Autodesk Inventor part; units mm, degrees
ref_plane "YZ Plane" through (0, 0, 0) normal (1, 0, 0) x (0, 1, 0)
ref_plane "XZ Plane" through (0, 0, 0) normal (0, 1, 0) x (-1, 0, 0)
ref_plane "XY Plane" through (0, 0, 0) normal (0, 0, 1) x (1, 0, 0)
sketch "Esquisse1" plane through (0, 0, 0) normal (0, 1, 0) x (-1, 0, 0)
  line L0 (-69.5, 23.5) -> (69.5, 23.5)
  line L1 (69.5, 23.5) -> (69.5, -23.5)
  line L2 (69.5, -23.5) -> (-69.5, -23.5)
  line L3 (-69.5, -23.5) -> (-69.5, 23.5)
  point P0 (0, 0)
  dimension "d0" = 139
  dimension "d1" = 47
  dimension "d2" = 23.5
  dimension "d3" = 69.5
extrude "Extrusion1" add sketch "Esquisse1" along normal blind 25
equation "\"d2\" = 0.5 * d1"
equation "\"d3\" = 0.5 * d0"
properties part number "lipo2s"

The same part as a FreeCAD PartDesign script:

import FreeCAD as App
import Part
import Sketcher

V = App.Vector
Q = App.Units.Quantity

doc = App.newDocument("Part")
params = doc.addObject("Spreadsheet::Sheet", "Params")
for row, (alias, value) in enumerate([
    ("sketch1_width", "139 mm"),
    ("sketch1_height", "47 mm"),
    ("pad1_length", "25 mm"),
], start=1):
    params.set(f"A{row}", alias)
    params.set(f"B{row}", "=" + value)
    params.setAlias(f"B{row}", alias)

body = doc.addObject("PartDesign::Body", "Body")

# Sketch on XZ plane
sketch1 = body.newObject("Sketcher::SketchObject", "Sketch")
sketch1.AttachmentSupport = (doc.getObject("XZ_Plane"), [""])
sketch1.MapMode = "FlatFace"
sketch1.addGeometry(Part.LineSegment(V(-69.5, 23.5, 0), V(69.5, 23.5, 0)), False)
sketch1.addGeometry(Part.LineSegment(V(69.5, 23.5, 0), V(69.5, -23.5, 0)), False)
sketch1.addGeometry(Part.LineSegment(V(69.5, -23.5, 0), V(-69.5, -23.5, 0)), False)
sketch1.addGeometry(Part.LineSegment(V(-69.5, -23.5, 0), V(-69.5, 23.5, 0)), False)
sketch1.addConstraint(Sketcher.Constraint("Coincident", 0, 2, 1, 1))
sketch1.addConstraint(Sketcher.Constraint("Coincident", 1, 2, 2, 1))
sketch1.addConstraint(Sketcher.Constraint("Coincident", 2, 2, 3, 1))
sketch1.addConstraint(Sketcher.Constraint("Coincident", 3, 2, 0, 1))
sketch1.addConstraint(Sketcher.Constraint("Horizontal", 0))
sketch1.addConstraint(Sketcher.Constraint("Vertical", 1))
sketch1.addConstraint(Sketcher.Constraint("Horizontal", 2))
sketch1.addConstraint(Sketcher.Constraint("Vertical", 3))
sketch1.addConstraint(Sketcher.Constraint("Symmetric", 0, 2, 2, 2, -1, 1))
sketch1.addConstraint(Sketcher.Constraint("DistanceX", 0, 1, 0, 2, Q("139 mm")))
sketch1.addConstraint(Sketcher.Constraint("DistanceY", 1, 2, 1, 1, Q("47 mm")))
sketch1.setExpression("Constraints[9]", "Params.sketch1_width")
sketch1.setExpression("Constraints[10]", "Params.sketch1_height")
pad1 = body.newObject("PartDesign::Pad", "Pad")
pad1.Profile = sketch1
pad1.setExpression("Length", "Params.pad1_length")
pad1.Reversed = True

doc.recompute()
